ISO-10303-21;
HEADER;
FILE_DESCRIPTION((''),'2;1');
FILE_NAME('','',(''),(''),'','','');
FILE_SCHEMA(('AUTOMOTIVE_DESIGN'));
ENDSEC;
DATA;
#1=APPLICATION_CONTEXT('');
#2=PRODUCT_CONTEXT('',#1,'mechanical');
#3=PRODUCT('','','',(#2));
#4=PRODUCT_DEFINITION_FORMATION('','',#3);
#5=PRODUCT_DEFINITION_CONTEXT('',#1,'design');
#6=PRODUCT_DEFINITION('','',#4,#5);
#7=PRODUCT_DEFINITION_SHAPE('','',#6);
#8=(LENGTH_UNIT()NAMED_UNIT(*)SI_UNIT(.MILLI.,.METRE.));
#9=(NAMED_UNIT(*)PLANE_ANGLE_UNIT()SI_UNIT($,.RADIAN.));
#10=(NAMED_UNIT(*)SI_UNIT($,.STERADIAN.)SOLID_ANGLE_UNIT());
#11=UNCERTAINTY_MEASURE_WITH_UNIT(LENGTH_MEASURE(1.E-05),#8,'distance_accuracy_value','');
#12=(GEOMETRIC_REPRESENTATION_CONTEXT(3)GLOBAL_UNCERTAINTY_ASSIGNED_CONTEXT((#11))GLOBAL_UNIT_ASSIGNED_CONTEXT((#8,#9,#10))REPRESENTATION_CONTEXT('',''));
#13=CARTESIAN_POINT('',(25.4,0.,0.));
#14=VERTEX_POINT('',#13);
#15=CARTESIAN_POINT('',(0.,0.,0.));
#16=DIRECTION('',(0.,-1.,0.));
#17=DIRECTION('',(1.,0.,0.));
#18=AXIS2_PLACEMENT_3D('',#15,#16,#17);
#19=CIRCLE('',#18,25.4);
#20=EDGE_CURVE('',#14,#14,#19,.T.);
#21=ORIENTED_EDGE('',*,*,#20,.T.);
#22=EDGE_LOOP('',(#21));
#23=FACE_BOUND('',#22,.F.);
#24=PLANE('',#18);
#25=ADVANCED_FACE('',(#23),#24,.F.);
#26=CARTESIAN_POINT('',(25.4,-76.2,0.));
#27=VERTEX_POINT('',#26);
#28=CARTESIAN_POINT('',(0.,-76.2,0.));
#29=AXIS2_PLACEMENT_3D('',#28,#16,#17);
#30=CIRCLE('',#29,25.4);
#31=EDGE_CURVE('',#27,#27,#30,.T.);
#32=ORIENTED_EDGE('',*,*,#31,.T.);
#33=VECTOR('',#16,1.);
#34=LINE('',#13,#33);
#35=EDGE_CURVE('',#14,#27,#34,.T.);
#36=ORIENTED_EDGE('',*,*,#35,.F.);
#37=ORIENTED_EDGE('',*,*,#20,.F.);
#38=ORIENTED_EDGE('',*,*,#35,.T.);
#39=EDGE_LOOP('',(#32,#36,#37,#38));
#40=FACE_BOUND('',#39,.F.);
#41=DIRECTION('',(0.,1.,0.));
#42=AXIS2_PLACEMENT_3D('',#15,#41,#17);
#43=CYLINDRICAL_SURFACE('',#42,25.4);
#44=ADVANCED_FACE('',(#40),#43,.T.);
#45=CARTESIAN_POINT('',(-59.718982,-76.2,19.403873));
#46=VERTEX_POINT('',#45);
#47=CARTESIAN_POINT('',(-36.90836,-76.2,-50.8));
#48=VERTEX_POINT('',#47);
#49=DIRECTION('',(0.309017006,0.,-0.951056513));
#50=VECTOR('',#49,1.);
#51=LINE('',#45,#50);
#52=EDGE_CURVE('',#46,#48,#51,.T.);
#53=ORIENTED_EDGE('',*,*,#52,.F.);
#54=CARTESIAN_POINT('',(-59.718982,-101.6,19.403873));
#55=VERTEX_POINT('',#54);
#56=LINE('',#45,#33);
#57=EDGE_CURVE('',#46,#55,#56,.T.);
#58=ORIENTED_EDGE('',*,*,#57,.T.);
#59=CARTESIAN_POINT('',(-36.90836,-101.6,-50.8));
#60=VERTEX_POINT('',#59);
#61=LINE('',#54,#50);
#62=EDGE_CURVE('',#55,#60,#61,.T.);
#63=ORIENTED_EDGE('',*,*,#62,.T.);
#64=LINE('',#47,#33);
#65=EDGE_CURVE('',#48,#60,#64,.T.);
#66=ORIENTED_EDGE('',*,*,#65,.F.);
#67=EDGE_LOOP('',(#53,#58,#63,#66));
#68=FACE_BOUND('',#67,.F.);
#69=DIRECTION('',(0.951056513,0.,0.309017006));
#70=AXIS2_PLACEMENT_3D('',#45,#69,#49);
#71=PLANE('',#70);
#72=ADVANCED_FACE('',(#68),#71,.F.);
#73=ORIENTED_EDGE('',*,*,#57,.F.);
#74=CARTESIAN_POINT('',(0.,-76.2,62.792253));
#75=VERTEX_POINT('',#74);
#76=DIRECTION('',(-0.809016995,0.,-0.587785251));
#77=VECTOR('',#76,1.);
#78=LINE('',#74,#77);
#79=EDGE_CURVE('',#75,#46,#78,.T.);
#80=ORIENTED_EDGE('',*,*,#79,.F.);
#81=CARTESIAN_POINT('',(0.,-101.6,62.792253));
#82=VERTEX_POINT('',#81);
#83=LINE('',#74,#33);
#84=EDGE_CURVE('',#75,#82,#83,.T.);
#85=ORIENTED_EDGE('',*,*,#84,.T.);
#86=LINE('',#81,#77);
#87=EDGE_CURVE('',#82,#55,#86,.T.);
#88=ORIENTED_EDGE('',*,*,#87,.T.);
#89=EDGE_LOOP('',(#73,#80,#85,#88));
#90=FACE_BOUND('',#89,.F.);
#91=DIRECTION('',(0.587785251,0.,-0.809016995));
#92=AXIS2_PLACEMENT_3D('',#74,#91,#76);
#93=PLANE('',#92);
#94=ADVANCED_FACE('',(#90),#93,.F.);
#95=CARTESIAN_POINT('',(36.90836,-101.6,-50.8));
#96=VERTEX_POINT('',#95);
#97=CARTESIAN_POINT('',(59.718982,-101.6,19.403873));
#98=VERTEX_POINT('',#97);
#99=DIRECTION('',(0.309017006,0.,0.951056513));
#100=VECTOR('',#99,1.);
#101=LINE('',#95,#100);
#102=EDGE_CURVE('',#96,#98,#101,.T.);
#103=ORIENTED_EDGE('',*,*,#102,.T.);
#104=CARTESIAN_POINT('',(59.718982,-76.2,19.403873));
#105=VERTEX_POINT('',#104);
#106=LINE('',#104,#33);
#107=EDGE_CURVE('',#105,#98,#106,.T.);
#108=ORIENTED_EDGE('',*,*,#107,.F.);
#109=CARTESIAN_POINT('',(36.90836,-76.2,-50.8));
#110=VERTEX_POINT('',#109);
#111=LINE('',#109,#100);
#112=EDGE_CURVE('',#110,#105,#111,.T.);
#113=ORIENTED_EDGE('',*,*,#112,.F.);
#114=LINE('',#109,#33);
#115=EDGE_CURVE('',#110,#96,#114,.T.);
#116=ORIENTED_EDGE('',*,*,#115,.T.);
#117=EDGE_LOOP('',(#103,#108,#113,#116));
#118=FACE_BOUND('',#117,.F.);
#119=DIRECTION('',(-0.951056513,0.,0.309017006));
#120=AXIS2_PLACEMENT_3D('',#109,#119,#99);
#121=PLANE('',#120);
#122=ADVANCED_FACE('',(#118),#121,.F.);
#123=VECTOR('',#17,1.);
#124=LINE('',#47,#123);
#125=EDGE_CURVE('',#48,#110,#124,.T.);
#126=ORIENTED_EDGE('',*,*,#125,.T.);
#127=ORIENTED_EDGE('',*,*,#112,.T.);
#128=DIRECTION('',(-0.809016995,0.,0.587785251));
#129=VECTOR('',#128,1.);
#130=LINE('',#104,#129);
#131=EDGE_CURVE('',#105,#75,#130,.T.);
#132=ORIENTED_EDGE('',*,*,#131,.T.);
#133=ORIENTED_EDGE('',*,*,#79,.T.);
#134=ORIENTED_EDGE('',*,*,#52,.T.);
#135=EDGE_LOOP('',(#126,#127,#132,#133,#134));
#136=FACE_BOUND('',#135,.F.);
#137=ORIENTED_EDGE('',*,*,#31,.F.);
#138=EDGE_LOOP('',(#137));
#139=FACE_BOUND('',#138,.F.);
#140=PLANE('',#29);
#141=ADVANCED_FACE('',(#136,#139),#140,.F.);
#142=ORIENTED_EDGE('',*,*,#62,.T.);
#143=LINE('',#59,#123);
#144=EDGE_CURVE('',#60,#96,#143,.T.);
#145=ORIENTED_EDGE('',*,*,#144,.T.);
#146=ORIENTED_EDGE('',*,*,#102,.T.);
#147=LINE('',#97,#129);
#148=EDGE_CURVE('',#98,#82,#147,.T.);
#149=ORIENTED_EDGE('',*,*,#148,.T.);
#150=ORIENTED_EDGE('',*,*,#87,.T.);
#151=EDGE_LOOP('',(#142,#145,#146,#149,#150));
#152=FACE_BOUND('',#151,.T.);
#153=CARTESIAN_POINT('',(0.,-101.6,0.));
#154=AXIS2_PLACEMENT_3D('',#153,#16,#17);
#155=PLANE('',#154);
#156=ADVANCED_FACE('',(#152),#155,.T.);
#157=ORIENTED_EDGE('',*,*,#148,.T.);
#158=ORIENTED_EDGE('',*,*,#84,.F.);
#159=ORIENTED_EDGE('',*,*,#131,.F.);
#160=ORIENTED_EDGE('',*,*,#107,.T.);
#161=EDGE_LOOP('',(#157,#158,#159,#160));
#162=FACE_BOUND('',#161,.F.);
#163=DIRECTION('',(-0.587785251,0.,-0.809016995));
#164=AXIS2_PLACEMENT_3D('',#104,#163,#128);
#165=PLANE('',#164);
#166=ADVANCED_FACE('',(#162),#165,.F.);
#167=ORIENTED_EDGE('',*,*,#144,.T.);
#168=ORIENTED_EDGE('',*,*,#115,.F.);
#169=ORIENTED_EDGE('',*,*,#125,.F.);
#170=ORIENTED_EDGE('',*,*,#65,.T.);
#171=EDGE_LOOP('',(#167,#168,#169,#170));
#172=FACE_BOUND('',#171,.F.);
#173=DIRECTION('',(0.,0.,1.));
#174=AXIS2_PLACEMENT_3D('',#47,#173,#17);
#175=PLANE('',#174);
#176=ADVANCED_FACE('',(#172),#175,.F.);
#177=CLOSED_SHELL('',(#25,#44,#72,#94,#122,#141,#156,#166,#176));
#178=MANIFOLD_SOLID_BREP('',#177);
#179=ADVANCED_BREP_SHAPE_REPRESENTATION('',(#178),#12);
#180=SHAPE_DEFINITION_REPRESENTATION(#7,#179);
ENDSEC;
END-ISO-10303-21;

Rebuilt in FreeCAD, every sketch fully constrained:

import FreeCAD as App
import Part
import Sketcher
from FreeCAD import Vector
Q = App.Units.Quantity

doc = App.newDocument("Part")
body = doc.addObject("PartDesign::Body", "Body")

# Sketch on XZ plane
sketch1 = body.newObject("Sketcher::SketchObject", "Sketch")
sketch1.AttachmentSupport = (doc.getObject("XZ_Plane"), [""])
sketch1.MapMode = "FlatFace"
sketch1.addGeometry(Part.Circle(Vector(0, 0, 0), Vector(0, 0, 1), 25.4), False)
sketch1.addConstraint(Sketcher.Constraint("Coincident", 0, 3, -1, 1))
sketch1.addConstraint(Sketcher.Constraint("Diameter", 0, Q("2 in")))
pad1 = body.newObject("PartDesign::Pad", "Pad")
pad1.Profile = sketch1
pad1.Length = Q("3 in")

# Sketch on XZ plane
sketch2 = body.newObject("Sketcher::SketchObject", "Sketch001")
sketch2.AttachmentSupport = (doc.getObject("XZ_Plane"), [""])
sketch2.MapMode = "FlatFace"
sketch2.AttachmentOffset = App.Placement(Vector(0, 0, 3 * 25.4), App.Rotation())
sketch2.addGeometry(Part.LineSegment(Vector(36.90836, -50.8, 0), Vector(59.718982, 19.403873, 0)), False)
sketch2.addGeometry(Part.LineSegment(Vector(59.718982, 19.403873, 0), Vector(0, 62.792253, 0)), False)
sketch2.addGeometry(Part.LineSegment(Vector(0, 62.792253, 0), Vector(-59.718982, 19.403873, 0)), False)
sketch2.addGeometry(Part.LineSegment(Vector(-59.718982, 19.403873, 0), Vector(-36.90836, -50.8, 0)), False)
sketch2.addGeometry(Part.LineSegment(Vector(-36.90836, -50.8, 0), Vector(36.90836, -50.8, 0)), False)
sketch2.addConstraint(Sketcher.Constraint("Coincident", 0, 2, 1, 1))
sketch2.addConstraint(Sketcher.Constraint("Coincident", 1, 2, 2, 1))
sketch2.addConstraint(Sketcher.Constraint("Coincident", 2, 2, 3, 1))
sketch2.addConstraint(Sketcher.Constraint("Coincident", 3, 2, 4, 1))
sketch2.addConstraint(Sketcher.Constraint("Coincident", 4, 2, 0, 1))
sketch2.addConstraint(Sketcher.Constraint("Horizontal", 4))
sketch2.addConstraint(Sketcher.Constraint("Symmetric", 0, 2, 2, 2, -2))
sketch2.addConstraint(Sketcher.Constraint("PointOnObject", 1, 2, -2))
sketch2.addConstraint(Sketcher.Constraint("Equal", 0, 1))
sketch2.addConstraint(Sketcher.Constraint("Equal", 2, 3))
sketch2.addConstraint(Sketcher.Constraint("DistanceY", 3, 2, -1, 1, Q("2 in")))
sketch2.addConstraint(Sketcher.Constraint("Angle", 0, Q("71.999999 deg")))
sketch2.addConstraint(Sketcher.Constraint("Angle", 1, Q("144 deg")))
sketch2.addConstraint(Sketcher.Constraint("DistanceX", 4, 1, 4, 2, Q("73.81672 mm")))
pad2 = body.newObject("PartDesign::Pad", "Pad001")
pad2.Profile = sketch2
pad2.Length = Q("1 in")

doc.recompute()
